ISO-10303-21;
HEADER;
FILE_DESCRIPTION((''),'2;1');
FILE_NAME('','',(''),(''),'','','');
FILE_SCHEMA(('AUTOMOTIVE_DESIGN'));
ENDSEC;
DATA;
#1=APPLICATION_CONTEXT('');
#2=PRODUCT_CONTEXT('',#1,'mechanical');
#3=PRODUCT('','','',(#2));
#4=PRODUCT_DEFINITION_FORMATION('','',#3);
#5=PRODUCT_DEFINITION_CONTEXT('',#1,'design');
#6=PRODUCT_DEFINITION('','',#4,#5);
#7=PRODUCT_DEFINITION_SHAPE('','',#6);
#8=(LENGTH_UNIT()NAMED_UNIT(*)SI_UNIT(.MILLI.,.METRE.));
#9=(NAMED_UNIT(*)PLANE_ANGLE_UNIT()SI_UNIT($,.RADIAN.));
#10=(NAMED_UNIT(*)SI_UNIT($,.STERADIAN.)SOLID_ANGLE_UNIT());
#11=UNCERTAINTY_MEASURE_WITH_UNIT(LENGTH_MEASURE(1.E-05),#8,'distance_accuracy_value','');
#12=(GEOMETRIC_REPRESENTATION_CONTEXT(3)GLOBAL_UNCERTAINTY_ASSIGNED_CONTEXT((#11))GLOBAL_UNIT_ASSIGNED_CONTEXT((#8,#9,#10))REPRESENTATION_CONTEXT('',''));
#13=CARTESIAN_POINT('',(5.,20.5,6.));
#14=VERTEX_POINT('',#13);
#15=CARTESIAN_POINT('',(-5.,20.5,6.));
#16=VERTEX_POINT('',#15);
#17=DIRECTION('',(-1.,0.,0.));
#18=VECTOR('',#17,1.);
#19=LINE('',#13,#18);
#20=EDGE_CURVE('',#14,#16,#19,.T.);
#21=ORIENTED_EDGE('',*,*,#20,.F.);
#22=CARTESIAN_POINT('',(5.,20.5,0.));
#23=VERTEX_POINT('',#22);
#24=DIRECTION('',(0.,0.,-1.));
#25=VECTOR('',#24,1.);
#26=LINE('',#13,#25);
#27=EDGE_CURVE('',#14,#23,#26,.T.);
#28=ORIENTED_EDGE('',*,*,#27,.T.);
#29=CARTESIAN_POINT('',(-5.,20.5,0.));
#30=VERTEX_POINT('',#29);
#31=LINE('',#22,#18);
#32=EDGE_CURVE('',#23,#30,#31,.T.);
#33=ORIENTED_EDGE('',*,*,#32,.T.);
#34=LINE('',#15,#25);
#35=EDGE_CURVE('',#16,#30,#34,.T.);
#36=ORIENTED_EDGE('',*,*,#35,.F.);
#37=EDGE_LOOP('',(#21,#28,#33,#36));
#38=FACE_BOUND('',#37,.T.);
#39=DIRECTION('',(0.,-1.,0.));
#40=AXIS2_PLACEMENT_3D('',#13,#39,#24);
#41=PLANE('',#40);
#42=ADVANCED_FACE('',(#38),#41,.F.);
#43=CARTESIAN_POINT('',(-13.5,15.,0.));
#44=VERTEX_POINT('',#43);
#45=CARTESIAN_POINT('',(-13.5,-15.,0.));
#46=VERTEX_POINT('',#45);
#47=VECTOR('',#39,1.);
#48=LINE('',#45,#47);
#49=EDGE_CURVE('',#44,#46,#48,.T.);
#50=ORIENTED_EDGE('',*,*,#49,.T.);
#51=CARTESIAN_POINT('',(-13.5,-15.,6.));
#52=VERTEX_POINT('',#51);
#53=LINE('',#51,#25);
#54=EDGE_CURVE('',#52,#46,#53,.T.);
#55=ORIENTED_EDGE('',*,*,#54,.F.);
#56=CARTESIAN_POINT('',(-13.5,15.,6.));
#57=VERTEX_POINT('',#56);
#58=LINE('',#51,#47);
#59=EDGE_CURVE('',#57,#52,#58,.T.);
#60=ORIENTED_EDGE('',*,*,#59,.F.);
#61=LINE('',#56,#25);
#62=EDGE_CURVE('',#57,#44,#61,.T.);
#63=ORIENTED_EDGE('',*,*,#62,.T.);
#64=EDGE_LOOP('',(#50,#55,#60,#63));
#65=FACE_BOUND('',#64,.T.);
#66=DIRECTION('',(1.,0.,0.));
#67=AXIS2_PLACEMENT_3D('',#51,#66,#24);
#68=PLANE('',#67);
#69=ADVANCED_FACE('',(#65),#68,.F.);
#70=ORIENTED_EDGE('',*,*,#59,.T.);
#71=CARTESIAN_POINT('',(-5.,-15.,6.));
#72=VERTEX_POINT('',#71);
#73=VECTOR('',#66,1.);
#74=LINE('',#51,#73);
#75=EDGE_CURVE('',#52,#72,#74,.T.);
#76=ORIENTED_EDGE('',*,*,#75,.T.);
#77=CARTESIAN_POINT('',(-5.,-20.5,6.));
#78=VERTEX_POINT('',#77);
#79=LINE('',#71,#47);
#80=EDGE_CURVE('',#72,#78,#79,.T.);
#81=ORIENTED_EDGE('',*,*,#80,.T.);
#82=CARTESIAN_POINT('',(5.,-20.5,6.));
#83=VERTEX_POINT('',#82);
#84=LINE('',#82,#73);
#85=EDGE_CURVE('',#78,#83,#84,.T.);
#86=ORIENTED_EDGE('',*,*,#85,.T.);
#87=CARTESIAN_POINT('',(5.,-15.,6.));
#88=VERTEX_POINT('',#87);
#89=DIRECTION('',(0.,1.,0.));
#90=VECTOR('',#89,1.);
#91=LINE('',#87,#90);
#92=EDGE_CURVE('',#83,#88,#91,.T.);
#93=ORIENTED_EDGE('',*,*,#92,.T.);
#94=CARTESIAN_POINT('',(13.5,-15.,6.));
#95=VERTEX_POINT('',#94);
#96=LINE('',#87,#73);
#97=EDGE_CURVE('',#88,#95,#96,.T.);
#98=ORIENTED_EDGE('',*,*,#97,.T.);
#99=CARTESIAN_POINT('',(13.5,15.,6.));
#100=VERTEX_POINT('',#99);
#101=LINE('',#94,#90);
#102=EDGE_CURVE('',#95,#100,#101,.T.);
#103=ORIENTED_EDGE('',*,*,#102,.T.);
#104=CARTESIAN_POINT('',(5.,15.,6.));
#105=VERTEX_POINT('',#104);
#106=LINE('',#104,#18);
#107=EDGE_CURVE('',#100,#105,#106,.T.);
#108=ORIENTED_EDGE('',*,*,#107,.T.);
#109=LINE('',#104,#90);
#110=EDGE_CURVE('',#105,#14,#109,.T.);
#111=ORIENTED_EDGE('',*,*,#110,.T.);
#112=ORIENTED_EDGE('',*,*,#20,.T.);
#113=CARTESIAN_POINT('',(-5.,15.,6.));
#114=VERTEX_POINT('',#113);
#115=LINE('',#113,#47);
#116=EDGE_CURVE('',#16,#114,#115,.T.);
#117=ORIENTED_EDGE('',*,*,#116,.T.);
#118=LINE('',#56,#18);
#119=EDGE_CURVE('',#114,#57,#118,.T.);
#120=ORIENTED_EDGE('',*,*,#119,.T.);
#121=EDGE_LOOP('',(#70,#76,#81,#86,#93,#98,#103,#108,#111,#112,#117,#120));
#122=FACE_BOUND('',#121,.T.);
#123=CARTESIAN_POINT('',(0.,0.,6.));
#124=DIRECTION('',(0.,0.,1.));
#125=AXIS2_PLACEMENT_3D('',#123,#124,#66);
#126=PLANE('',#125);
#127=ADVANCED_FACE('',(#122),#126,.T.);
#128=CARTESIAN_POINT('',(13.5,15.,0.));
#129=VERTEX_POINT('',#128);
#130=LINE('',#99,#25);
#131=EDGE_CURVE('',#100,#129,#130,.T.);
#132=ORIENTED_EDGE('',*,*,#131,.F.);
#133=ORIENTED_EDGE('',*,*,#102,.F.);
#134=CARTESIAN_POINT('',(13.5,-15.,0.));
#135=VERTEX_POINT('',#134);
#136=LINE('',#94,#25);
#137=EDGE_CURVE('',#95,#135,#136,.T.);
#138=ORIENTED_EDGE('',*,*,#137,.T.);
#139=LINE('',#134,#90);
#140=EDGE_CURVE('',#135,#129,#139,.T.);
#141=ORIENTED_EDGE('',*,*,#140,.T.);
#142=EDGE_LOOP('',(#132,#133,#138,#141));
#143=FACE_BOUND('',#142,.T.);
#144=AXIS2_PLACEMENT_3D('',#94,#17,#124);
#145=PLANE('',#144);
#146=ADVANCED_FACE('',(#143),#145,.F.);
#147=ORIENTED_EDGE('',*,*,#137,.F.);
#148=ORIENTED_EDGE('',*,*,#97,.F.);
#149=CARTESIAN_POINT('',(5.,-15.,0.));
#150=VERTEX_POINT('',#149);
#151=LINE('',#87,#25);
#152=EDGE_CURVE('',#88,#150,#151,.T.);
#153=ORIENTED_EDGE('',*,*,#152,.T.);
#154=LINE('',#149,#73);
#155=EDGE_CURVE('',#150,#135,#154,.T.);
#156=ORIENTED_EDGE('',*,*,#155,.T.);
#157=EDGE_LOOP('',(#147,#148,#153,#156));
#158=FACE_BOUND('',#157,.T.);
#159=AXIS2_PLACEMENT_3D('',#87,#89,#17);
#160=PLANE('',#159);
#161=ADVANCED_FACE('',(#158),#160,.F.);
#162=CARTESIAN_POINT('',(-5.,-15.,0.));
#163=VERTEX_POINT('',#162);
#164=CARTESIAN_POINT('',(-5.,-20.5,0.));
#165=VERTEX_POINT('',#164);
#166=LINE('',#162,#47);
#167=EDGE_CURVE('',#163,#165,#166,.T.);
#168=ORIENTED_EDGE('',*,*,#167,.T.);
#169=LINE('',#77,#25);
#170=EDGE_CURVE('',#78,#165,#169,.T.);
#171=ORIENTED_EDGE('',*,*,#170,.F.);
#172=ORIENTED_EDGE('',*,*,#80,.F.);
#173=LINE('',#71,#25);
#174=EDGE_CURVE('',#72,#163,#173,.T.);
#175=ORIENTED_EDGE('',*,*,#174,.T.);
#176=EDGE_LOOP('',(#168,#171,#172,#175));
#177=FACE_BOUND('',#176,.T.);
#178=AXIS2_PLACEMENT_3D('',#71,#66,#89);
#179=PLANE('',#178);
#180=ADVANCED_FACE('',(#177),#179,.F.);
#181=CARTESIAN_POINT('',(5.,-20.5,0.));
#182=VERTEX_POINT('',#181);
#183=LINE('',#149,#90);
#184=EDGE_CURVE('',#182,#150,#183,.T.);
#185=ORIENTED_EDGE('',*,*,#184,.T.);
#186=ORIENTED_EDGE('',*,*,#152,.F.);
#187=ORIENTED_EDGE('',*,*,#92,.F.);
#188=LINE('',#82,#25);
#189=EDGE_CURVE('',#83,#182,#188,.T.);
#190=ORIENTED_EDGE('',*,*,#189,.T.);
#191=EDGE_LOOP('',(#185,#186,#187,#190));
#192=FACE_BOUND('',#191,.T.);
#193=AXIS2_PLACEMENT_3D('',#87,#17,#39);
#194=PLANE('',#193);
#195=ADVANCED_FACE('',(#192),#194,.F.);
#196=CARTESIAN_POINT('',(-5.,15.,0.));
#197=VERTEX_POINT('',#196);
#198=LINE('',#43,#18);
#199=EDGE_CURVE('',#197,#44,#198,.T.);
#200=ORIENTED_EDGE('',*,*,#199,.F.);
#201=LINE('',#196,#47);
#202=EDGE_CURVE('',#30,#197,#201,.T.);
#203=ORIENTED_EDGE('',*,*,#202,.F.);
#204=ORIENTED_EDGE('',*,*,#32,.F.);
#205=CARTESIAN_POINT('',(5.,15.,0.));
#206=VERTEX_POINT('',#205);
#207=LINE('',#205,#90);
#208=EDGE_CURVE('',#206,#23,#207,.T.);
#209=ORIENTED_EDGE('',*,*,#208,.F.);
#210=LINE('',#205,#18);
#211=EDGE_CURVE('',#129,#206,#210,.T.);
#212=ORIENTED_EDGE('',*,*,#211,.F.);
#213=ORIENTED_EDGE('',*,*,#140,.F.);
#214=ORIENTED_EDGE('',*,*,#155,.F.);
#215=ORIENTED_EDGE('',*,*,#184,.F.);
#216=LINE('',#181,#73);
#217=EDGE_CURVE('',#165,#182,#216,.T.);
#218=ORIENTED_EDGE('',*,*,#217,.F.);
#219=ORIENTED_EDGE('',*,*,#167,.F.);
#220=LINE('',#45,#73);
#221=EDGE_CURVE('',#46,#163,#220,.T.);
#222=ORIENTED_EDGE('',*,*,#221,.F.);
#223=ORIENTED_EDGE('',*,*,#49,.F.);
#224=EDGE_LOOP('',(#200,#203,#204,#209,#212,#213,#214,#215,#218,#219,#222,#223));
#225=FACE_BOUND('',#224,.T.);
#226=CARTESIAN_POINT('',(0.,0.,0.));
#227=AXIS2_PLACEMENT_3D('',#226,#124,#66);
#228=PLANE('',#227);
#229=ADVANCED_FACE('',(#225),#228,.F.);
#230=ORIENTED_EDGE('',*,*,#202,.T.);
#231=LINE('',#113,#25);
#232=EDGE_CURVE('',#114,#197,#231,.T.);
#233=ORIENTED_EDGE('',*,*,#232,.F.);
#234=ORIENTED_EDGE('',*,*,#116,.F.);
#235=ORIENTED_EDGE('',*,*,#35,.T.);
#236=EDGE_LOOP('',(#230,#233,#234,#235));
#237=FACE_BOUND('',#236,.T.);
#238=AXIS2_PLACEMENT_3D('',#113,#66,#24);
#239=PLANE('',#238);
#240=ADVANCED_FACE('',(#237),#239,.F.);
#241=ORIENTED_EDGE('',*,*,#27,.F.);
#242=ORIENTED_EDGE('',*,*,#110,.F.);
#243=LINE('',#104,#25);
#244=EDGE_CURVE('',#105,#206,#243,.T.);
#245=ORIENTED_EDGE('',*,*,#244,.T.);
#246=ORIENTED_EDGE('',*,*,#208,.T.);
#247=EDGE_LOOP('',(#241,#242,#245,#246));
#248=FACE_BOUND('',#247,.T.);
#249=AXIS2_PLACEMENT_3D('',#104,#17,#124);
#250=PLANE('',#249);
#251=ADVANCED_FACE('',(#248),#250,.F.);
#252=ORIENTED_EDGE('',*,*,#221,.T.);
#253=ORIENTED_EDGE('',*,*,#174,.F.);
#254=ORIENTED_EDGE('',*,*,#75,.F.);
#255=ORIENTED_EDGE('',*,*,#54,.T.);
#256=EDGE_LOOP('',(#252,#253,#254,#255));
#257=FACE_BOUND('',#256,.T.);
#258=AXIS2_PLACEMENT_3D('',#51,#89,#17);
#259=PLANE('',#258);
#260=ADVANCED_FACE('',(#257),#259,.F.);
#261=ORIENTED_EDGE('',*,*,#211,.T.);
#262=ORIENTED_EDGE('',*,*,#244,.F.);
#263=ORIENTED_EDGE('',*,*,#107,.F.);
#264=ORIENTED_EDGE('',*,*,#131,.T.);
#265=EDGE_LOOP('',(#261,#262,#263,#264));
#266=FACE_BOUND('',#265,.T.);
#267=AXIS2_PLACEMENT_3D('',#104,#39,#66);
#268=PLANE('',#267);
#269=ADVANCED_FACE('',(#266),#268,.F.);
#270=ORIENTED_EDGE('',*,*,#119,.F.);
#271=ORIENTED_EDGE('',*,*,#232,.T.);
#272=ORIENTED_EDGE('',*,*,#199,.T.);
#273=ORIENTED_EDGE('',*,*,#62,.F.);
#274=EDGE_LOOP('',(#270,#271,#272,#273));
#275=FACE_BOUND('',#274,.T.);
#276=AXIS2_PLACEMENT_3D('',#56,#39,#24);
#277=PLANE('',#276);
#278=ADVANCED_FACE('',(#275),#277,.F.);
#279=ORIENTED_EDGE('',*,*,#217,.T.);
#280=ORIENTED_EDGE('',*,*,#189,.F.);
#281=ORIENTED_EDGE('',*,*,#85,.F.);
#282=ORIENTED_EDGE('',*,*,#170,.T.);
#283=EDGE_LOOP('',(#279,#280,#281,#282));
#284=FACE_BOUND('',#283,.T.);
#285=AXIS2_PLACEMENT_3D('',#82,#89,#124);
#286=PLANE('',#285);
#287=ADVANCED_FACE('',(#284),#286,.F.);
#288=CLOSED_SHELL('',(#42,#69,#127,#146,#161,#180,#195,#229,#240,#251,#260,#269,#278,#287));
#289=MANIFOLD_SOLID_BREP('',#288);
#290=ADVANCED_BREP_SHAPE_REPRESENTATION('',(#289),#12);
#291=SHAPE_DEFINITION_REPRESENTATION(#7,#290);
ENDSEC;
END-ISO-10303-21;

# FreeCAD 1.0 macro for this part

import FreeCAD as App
import Part
import Sketcher

V = App.Vector


def add_polygon(sketch, points):
    """Adds a closed chain of lines whose ends are joined by coincident constraints."""
    first, n = sketch.GeometryCount, len(points)
    for a, b in zip(points, points[1:] + points[:1]):
        sketch.addGeometry(Part.LineSegment(App.Vector(*a, 0), App.Vector(*b, 0)), False)
    for i in range(n):
        sketch.addConstraint(Sketcher.Constraint("Coincident", first + i, 2, first + (i + 1) % n, 1))

doc = App.newDocument("Part")
body = doc.addObject("PartDesign::Body", "Body")

sketch1 = body.newObject("Sketcher::SketchObject", "Sketch")
sketch1.AttachmentSupport = (doc.getObject("XY_Plane"), [""])
sketch1.MapMode = "FlatFace"
add_polygon(sketch1, [(5, -15), (13.5, -15), (13.5, 15), (5, 15), (5, 20.5), (-5, 20.5), (-5, 15), (-13.5, 15), (-13.5, -15), (-5, -15), (-5, -20.5), (5, -20.5)])
sketch1.addConstraint([
    Sketcher.Constraint("Horizontal", 0),
    Sketcher.Constraint("Vertical", 1),
    Sketcher.Constraint("Horizontal", 2),
    Sketcher.Constraint("Vertical", 3),
    Sketcher.Constraint("Horizontal", 4),
    Sketcher.Constraint("Vertical", 5),
    Sketcher.Constraint("Horizontal", 6),
    Sketcher.Constraint("Vertical", 7),
    Sketcher.Constraint("Horizontal", 8),
    Sketcher.Constraint("Vertical", 9),
    Sketcher.Constraint("Horizontal", 10),
    Sketcher.Constraint("Vertical", 11),
    Sketcher.Constraint("Symmetric", 0, 2, 6, 2, -1, 1),
    Sketcher.Constraint("Symmetric", 2, 2, 8, 2, -1, 1),
    Sketcher.Constraint("Symmetric", 4, 2, 10, 2, -1, 1),
    Sketcher.Constraint("Symmetric", 2, 2, 5, 2, -2),
    Sketcher.Constraint("DistanceX", 4, 2, 4, 1, 10.0),
    Sketcher.Constraint("DistanceY", 1, 1, 1, 2, 30.0),
    Sketcher.Constraint("DistanceX", 0, 1, 0, 2, 8.5),
    Sketcher.Constraint("DistanceY", 3, 1, 3, 2, 5.5),
])
pad1 = body.newObject("PartDesign::Pad", "Pad")
pad1.Profile = sketch1
pad1.Length = 6

doc.recompute()
